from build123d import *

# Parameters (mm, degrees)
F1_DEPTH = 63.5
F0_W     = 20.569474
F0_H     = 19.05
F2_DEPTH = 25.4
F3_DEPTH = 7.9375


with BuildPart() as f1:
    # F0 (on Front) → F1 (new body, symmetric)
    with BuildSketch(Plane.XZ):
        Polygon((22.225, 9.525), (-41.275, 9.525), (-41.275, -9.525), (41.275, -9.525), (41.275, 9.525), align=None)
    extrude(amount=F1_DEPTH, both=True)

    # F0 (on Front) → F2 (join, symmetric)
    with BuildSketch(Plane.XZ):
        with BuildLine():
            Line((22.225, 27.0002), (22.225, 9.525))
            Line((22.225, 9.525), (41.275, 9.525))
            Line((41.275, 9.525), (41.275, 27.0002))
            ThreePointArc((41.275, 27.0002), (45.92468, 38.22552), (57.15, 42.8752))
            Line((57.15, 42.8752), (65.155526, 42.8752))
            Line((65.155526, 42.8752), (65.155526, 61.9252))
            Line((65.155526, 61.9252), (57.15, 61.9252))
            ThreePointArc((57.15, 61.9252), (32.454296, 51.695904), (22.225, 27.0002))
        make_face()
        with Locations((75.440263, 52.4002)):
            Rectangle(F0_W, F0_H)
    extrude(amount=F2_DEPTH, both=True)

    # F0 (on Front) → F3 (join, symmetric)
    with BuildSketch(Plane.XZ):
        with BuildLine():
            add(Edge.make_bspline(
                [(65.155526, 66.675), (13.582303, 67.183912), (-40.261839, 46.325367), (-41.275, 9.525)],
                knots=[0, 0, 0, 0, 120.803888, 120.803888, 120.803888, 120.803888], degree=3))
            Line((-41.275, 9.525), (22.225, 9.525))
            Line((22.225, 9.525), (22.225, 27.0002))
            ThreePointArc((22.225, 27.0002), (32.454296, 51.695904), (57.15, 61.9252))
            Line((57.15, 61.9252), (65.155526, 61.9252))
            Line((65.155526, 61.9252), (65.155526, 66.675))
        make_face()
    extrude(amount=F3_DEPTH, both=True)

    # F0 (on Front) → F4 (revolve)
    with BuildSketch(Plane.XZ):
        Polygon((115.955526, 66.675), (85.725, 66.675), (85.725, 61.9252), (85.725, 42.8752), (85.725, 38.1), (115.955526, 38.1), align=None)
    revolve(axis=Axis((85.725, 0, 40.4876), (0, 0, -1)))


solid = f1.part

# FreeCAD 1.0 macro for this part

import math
import FreeCAD as App
import Part
import Sketcher

V = App.Vector
Q = App.Units.Quantity


def add_polygon(sketch, points):
    """Adds a closed chain of lines whose ends are joined by coincident constraints."""
    first, n = sketch.GeometryCount, len(points)
    for a, b in zip(points, points[1:] + points[:1]):
        sketch.addGeometry(Part.LineSegment(App.Vector(*a, 0), App.Vector(*b, 0)), False)
    for i in range(n):
        sketch.addConstraint(Sketcher.Constraint("Coincident", first + i, 2, first + (i + 1) % n, 1))

doc = App.newDocument("Part")
body = doc.addObject("PartDesign::Body", "Body")

sketch1 = body.newObject("Sketcher::SketchObject", "Sketch")
sketch1.AttachmentSupport = (doc.getObject("XZ_Plane"), [""])
sketch1.MapMode = "FlatFace"
add_polygon(sketch1, [(-41, 10), (-41, -10), (41, -10), (41, 10)])
sketch1.addConstraint(Sketcher.Constraint("Vertical", 0))
sketch1.addConstraint(Sketcher.Constraint("Horizontal", 1))
sketch1.addConstraint(Sketcher.Constraint("Vertical", 2))
sketch1.addConstraint(Sketcher.Constraint("Horizontal", 3))
sketch1.addConstraint(Sketcher.Constraint("Symmetric", 0, 2, 2, 2, -1, 1))
sketch1.addConstraint(Sketcher.Constraint("DistanceX", 1, 1, 1, 2, Q("3.25 in")))
sketch1.addConstraint(Sketcher.Constraint("DistanceY", 0, 2, 0, 1, Q("0.75 in")))
pad1 = body.newObject("PartDesign::Pad", "Pad")
pad1.Profile = sketch1
pad1.Length = Q("5 in")
pad1.Midplane = True

sketch2 = body.newObject("Sketcher::SketchObject", "Sketch001")
sketch2.AttachmentSupport = (doc.getObject("XZ_Plane"), [""])
sketch2.MapMode = "FlatFace"
sketch2.addGeometry(Part.LineSegment(V(22, 27, 0), V(22, 10, 0)), False)
sketch2.addGeometry(Part.LineSegment(V(22, 10, 0), V(41, 10, 0)), False)
sketch2.addGeometry(Part.LineSegment(V(41, 10, 0), V(41, 27, 0)), False)
sketch2.addGeometry(Part.ArcOfCircle(Part.Circle(V(57, 27, 0), V(0, 0, 1), 16), math.radians(90), math.radians(180)), False)
sketch2.addGeometry(Part.LineSegment(V(57, 43, 0), V(86, 43, 0)), False)
sketch2.addGeometry(Part.LineSegment(V(86, 43, 0), V(86, 62, 0)), False)
sketch2.addGeometry(Part.LineSegment(V(86, 62, 0), V(57, 62, 0)), False)
sketch2.addGeometry(Part.ArcOfCircle(Part.Circle(V(57, 27, 0), V(0, 0, 1), 35), math.radians(90), math.radians(180)), False)
sketch2.addConstraint(Sketcher.Constraint("Coincident", 0, 2, 1, 1))
sketch2.addConstraint(Sketcher.Constraint("Coincident", 1, 2, 2, 1))
sketch2.addConstraint(Sketcher.Constraint("Tangent", 2, 2, 3, 2))
sketch2.addConstraint(Sketcher.Constraint("Tangent", 3, 1, 4, 1))
sketch2.addConstraint(Sketcher.Constraint("Coincident", 4, 2, 5, 1))
sketch2.addConstraint(Sketcher.Constraint("Coincident", 5, 2, 6, 1))
sketch2.addConstraint(Sketcher.Constraint("Tangent", 6, 2, 7, 1))
sketch2.addConstraint(Sketcher.Constraint("Tangent", 7, 2, 0, 1))
sketch2.addConstraint(Sketcher.Constraint("Vertical", 0))
sketch2.addConstraint(Sketcher.Constraint("Horizontal", 1))
sketch2.addConstraint(Sketcher.Constraint("Vertical", 2))
sketch2.addConstraint(Sketcher.Constraint("Horizontal", 4))
sketch2.addConstraint(Sketcher.Constraint("Vertical", 5))
sketch2.addConstraint(Sketcher.Constraint("Horizontal", 6))
sketch2.addConstraint(Sketcher.Constraint("Coincident", 7, 3, 3, 3))
sketch2.addConstraint(Sketcher.Constraint("Radius", 3, Q("0.625 in")))
sketch2.addConstraint(Sketcher.Constraint("Radius", 7, Q("1.375 in")))
sketch2.addConstraint(Sketcher.Constraint("DistanceX", 4, 1, 4, 2, Q("1.125 in")))
sketch2.addConstraint(Sketcher.Constraint("DistanceY", 0, 2, 0, 1, Q("0.688 in")))
sketch2.addConstraint(Sketcher.Constraint("DistanceX", -1, 1, 3, 3, Q("2.25 in")))
sketch2.addConstraint(Sketcher.Constraint("DistanceY", -1, 1, 3, 3, Q("1.063 in")))
pad2 = body.newObject("PartDesign::Pad", "Pad001")
pad2.Profile = sketch2
pad2.Length = Q("2 in")
pad2.Midplane = True

sketch3 = body.newObject("Sketcher::SketchObject", "Sketch002")
sketch3.AttachmentSupport = (doc.getObject("XZ_Plane"), [""])
sketch3.MapMode = "FlatFace"
sketch3.addGeometry(Part.BSplineCurve([V(65.155526, 66.675, 0), V(13.582303, 67.183912, 0), V(-40.261839, 46.325367, 0), V(-41.275, 9.525, 0)], [4, 4], [0, 120.803888], False, 3, [1, 1, 1, 1], False), False)
sketch3.addGeometry(Part.LineSegment(V(-41.275, 9.525, 0), V(22.225, 9.525, 0)), False)
sketch3.addGeometry(Part.LineSegment(V(22.225, 9.525, 0), V(22.225, 27.0002, 0)), False)
sketch3.addGeometry(Part.ArcOfCircle(Part.Circle(V(57.150001, 27.000199, 0), V(0, 0, 1), 34.925001), math.radians(90.000002), math.radians(179.999998)), False)
sketch3.addGeometry(Part.LineSegment(V(57.15, 61.9252, 0), V(65.155526, 61.9252, 0)), False)
sketch3.addGeometry(Part.LineSegment(V(65.155526, 61.9252, 0), V(65.155526, 66.675, 0)), False)
sketch3.addConstraint(Sketcher.Constraint("Block", 0))
sketch3.addConstraint(Sketcher.Constraint("Coincident", 0, 2, 1, 1))
sketch3.addConstraint(Sketcher.Constraint("Coincident", 1, 2, 2, 1))
sketch3.addConstraint(Sketcher.Constraint("Tangent", 2, 2, 3, 2))
sketch3.addConstraint(Sketcher.Constraint("Tangent", 3, 1, 4, 1))
sketch3.addConstraint(Sketcher.Constraint("Coincident", 4, 2, 5, 1))
sketch3.addConstraint(Sketcher.Constraint("Coincident", 5, 2, 0, 1))
sketch3.addConstraint(Sketcher.Constraint("Horizontal", 1))
sketch3.addConstraint(Sketcher.Constraint("Vertical", 2))
sketch3.addConstraint(Sketcher.Constraint("Horizontal", 4))
sketch3.addConstraint(Sketcher.Constraint("Vertical", 5))
sketch3.addConstraint(Sketcher.Constraint("DistanceX", 1, 1, 1, 2, Q("2.5 in")))
sketch3.addConstraint(Sketcher.Constraint("Radius", 3, Q("1.375 in")))
sketch3.addConstraint(Sketcher.Constraint("DistanceY", 2, 1, 2, 2, Q("0.688 in")))
pad3 = body.newObject("PartDesign::Pad", "Pad002")
pad3.Profile = sketch3
pad3.Length = Q("0.625 in")
pad3.Midplane = True

sketch4 = body.newObject("Sketcher::SketchObject", "Sketch003")
sketch4.AttachmentSupport = (doc.getObject("XZ_Plane"), [""])
sketch4.MapMode = "FlatFace"
add_polygon(sketch4, [(116, 67), (86, 67), (86, 38), (116, 38)])
sketch4.addGeometry(Part.LineSegment(V(86, 67, 0), V(86, 38, 0)), True)
sketch4.addConstraint(Sketcher.Constraint("Horizontal", 0))
sketch4.addConstraint(Sketcher.Constraint("Vertical", 1))
sketch4.addConstraint(Sketcher.Constraint("Horizontal", 2))
sketch4.addConstraint(Sketcher.Constraint("Vertical", 3))
sketch4.addConstraint(Sketcher.Constraint("Vertical", 4))
sketch4.addConstraint(Sketcher.Constraint("Coincident", 4, 1, 0, 2))
sketch4.addConstraint(Sketcher.Constraint("Horizontal", 2, 2, 4, 2))
sketch4.addConstraint(Sketcher.Constraint("DistanceY", -1, 1, 1, 2, Q("1.5 in")))
sketch4.addConstraint(Sketcher.Constraint("DistanceY", 1, 2, 1, 1, Q("1.125 in")))
sketch4.addConstraint(Sketcher.Constraint("DistanceX", -1, 1, 0, 2, Q("3.375 in")))
sketch4.addConstraint(Sketcher.Constraint("DistanceX", 0, 2, 0, 1, 30.230526))
revolution = body.newObject("PartDesign::Revolution", "Revolution")
revolution.Profile = sketch4
revolution.ReferenceAxis = (sketch4, ["Axis0"])
revolution.Angle = 360

doc.recompute()
